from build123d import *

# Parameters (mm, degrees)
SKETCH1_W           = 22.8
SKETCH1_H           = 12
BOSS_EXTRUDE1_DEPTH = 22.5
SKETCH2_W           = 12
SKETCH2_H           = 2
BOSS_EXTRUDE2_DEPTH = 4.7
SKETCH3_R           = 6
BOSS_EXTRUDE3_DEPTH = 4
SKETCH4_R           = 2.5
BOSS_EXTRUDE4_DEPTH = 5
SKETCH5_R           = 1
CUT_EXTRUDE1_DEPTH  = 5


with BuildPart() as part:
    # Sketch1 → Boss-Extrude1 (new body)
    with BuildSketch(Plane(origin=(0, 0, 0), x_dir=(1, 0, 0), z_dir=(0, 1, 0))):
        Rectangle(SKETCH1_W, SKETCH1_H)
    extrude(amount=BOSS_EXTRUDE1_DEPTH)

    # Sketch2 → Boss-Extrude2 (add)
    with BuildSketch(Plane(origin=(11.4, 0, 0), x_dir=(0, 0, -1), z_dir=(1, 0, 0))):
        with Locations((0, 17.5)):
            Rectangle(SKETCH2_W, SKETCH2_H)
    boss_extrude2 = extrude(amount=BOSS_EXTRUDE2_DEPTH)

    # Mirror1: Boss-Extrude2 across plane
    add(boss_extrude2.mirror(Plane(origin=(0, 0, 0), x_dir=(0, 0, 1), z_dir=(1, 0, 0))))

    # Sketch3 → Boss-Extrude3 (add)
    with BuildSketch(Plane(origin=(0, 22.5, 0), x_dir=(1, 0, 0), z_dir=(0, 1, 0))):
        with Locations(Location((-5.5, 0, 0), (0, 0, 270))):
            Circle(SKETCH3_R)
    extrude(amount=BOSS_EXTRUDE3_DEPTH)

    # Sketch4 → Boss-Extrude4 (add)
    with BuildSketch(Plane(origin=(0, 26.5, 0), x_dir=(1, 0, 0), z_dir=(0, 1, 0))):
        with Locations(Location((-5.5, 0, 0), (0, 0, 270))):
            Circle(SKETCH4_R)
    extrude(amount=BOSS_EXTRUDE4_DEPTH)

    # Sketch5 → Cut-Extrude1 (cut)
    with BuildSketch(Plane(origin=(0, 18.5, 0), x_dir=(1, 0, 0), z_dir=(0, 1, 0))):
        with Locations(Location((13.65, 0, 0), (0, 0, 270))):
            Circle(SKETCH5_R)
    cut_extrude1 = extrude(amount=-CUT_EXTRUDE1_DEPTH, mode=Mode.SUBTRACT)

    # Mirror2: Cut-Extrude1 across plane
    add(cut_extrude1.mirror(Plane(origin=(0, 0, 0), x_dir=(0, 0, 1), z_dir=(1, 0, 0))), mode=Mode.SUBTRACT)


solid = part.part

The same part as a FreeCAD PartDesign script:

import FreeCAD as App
import Part
import Sketcher
from FreeCAD import Vector

doc = App.newDocument("Part")
params = doc.addObject("Spreadsheet::Sheet", "Params")
for row, (alias, value) in enumerate([
    ("sketch1_height", "12 mm"),
    ("sketch1_width", "22.8 mm"),
    ("pad1_length", "22.5 mm"),
    ("sketch2_width", "2 mm"),
    ("sketch2_height", "12 mm"),
    ("pad2_length", "4.7 mm"),
    ("sketch3_diameter", "12 mm"),
    ("pad3_length", "4 mm"),
    ("sketch4_diameter", "5 mm"),
    ("pad4_length", "5 mm"),
    ("sketch5_diameter", "2 mm"),
    ("pocket1_length", "5 mm"),
], start=1):
    params.set(f"A{row}", alias)
    params.set(f"B{row}", "=" + value)
    params.setAlias(f"B{row}", alias)

body = doc.addObject("PartDesign::Body", "Body")

sketch1 = body.newObject("Sketcher::SketchObject", "Sketch")
sketch1.AttachmentSupport = (doc.getObject("XZ_Plane"), [""])
sketch1.MapMode = "FlatFace"
sketch1.addGeometry([
    Part.LineSegment(Vector(-11, -6, 0), Vector(-11, 6, 0)),
    Part.LineSegment(Vector(-11, 6, 0), Vector(11, 6, 0)),
    Part.LineSegment(Vector(11, 6, 0), Vector(11, -6, 0)),
    Part.LineSegment(Vector(11, -6, 0), Vector(-11, -6, 0)),
], False)
sketch1.addConstraint([
    Sketcher.Constraint("Coincident", 0, 2, 1, 1),
    Sketcher.Constraint("Coincident", 1, 2, 2, 1),
    Sketcher.Constraint("Coincident", 2, 2, 3, 1),
    Sketcher.Constraint("Coincident", 3, 2, 0, 1),
    Sketcher.Constraint("Vertical", 0),
    Sketcher.Constraint("Horizontal", 1),
    Sketcher.Constraint("Vertical", 2),
    Sketcher.Constraint("Horizontal", 3),
    Sketcher.Constraint("Symmetric", 0, 2, 2, 2, -1, 1),
    Sketcher.Constraint("DistanceY", 0, 1, 0, 2, 12.0),
    Sketcher.Constraint("DistanceX", 1, 1, 1, 2, 22.8),
])
sketch1.setExpression("Constraints[9]", "Params.sketch1_height")
sketch1.setExpression("Constraints[10]", "Params.sketch1_width")
pad1 = body.newObject("PartDesign::Pad", "Pad")
pad1.Profile = sketch1
pad1.setExpression("Length", "Params.pad1_length")
pad1.Reversed = True

sketch2 = body.newObject("Sketcher::SketchObject", "Sketch001")
sketch2.AttachmentSupport = (doc.getObject("YZ_Plane"), [""])
sketch2.MapMode = "FlatFace"
sketch2.AttachmentOffset = App.Placement(Vector(0, 0, 11.4), App.Rotation())
sketch2.addGeometry([
    Part.LineSegment(Vector(18.5, 6, 0), Vector(16.5, 6, 0)),
    Part.LineSegment(Vector(16.5, 6, 0), Vector(16.5, -6, 0)),
    Part.LineSegment(Vector(16.5, -6, 0), Vector(18.5, -6, 0)),
    Part.LineSegment(Vector(18.5, -6, 0), Vector(18.5, 6, 0)),
], False)
sketch2.addConstraint([
    Sketcher.Constraint("Coincident", 0, 2, 1, 1),
    Sketcher.Constraint("Coincident", 1, 2, 2, 1),
    Sketcher.Constraint("Coincident", 2, 2, 3, 1),
    Sketcher.Constraint("Coincident", 3, 2, 0, 1),
    Sketcher.Constraint("Horizontal", 0),
    Sketcher.Constraint("Vertical", 1),
    Sketcher.Constraint("Horizontal", 2),
    Sketcher.Constraint("Vertical", 3),
    Sketcher.Constraint("DistanceX", 0, 2, 0, 1, 2.0),
    Sketcher.Constraint("DistanceY", 1, 2, 1, 1, 12.0),
    Sketcher.Constraint("DistanceY", -1, 1, 0, 2, 6.0),
    Sketcher.Constraint("DistanceX", -1, 1, 0, 2, 16.5),
])
sketch2.setExpression("Constraints[8]", "Params.sketch2_width")
sketch2.setExpression("Constraints[9]", "Params.sketch2_height")
pad2 = body.newObject("PartDesign::Pad", "Pad001")
pad2.Profile = sketch2
pad2.setExpression("Length", "Params.pad2_length")
doc.recompute()

mirrored = body.newObject("PartDesign::Mirrored", "Mirrored")
mirrored.Originals = [pad2]
mirrored.MirrorPlane = (doc.getObject("YZ_Plane"), [""])
body.Tip = mirrored

sketch3 = body.newObject("Sketcher::SketchObject", "Sketch002")
sketch3.AttachmentSupport = (doc.getObject("XZ_Plane"), [""])
sketch3.MapMode = "FlatFace"
sketch3.AttachmentOffset = App.Placement(Vector(0, 0, -22.5), App.Rotation())
sketch3.addGeometry(Part.Circle(Vector(-6, 0, 0), Vector(0, 0, 1), 6), False)
sketch3.addConstraint([
    Sketcher.Constraint("PointOnObject", 0, 3, -1),
    Sketcher.Constraint("Diameter", 0, 12.0),
    Sketcher.Constraint("DistanceX", 0, 3, -1, 1, 5.5),
])
sketch3.setExpression("Constraints[1]", "Params.sketch3_diameter")
pad3 = body.newObject("PartDesign::Pad", "Pad002")
pad3.Profile = sketch3
pad3.setExpression("Length", "Params.pad3_length")
pad3.Reversed = True

sketch4 = body.newObject("Sketcher::SketchObject", "Sketch003")
sketch4.AttachmentSupport = (doc.getObject("XZ_Plane"), [""])
sketch4.MapMode = "FlatFace"
sketch4.AttachmentOffset = App.Placement(Vector(0, 0, -26.5), App.Rotation())
sketch4.addGeometry(Part.Circle(Vector(-5.5, 0, 0), Vector(0, 0, 1), 2.5), False)
sketch4.addConstraint([
    Sketcher.Constraint("PointOnObject", 0, 3, -1),
    Sketcher.Constraint("Diameter", 0, 5.0),
    Sketcher.Constraint("DistanceX", 0, 3, -1, 1, 5.5),
])
sketch4.setExpression("Constraints[1]", "Params.sketch4_diameter")
pad4 = body.newObject("PartDesign::Pad", "Pad003")
pad4.Profile = sketch4
pad4.setExpression("Length", "Params.pad4_length")
pad4.Reversed = True

sketch5 = body.newObject("Sketcher::SketchObject", "Sketch004")
sketch5.AttachmentSupport = (doc.getObject("XZ_Plane"), [""])
sketch5.MapMode = "FlatFace"
sketch5.AttachmentOffset = App.Placement(Vector(0, 0, -18.5), App.Rotation())
sketch5.addGeometry(Part.Circle(Vector(13.7, 0, 0), Vector(0, 0, 1), 1), False)
sketch5.addConstraint([
    Sketcher.Constraint("PointOnObject", 0, 3, -1),
    Sketcher.Constraint("Diameter", 0, 2.0),
    Sketcher.Constraint("DistanceX", -1, 1, 0, 3, 13.65),
])
sketch5.setExpression("Constraints[1]", "Params.sketch5_diameter")
pocket1 = body.newObject("PartDesign::Pocket", "Pocket")
pocket1.Profile = sketch5
pocket1.setExpression("Length", "Params.pocket1_length")
pocket1.Reversed = True
doc.recompute()

mirrored2 = body.newObject("PartDesign::Mirrored", "Mirrored001")
mirrored2.Originals = [pocket1]
mirrored2.MirrorPlane = (doc.getObject("YZ_Plane"), [""])
body.Tip = mirrored2

doc.recompute()
